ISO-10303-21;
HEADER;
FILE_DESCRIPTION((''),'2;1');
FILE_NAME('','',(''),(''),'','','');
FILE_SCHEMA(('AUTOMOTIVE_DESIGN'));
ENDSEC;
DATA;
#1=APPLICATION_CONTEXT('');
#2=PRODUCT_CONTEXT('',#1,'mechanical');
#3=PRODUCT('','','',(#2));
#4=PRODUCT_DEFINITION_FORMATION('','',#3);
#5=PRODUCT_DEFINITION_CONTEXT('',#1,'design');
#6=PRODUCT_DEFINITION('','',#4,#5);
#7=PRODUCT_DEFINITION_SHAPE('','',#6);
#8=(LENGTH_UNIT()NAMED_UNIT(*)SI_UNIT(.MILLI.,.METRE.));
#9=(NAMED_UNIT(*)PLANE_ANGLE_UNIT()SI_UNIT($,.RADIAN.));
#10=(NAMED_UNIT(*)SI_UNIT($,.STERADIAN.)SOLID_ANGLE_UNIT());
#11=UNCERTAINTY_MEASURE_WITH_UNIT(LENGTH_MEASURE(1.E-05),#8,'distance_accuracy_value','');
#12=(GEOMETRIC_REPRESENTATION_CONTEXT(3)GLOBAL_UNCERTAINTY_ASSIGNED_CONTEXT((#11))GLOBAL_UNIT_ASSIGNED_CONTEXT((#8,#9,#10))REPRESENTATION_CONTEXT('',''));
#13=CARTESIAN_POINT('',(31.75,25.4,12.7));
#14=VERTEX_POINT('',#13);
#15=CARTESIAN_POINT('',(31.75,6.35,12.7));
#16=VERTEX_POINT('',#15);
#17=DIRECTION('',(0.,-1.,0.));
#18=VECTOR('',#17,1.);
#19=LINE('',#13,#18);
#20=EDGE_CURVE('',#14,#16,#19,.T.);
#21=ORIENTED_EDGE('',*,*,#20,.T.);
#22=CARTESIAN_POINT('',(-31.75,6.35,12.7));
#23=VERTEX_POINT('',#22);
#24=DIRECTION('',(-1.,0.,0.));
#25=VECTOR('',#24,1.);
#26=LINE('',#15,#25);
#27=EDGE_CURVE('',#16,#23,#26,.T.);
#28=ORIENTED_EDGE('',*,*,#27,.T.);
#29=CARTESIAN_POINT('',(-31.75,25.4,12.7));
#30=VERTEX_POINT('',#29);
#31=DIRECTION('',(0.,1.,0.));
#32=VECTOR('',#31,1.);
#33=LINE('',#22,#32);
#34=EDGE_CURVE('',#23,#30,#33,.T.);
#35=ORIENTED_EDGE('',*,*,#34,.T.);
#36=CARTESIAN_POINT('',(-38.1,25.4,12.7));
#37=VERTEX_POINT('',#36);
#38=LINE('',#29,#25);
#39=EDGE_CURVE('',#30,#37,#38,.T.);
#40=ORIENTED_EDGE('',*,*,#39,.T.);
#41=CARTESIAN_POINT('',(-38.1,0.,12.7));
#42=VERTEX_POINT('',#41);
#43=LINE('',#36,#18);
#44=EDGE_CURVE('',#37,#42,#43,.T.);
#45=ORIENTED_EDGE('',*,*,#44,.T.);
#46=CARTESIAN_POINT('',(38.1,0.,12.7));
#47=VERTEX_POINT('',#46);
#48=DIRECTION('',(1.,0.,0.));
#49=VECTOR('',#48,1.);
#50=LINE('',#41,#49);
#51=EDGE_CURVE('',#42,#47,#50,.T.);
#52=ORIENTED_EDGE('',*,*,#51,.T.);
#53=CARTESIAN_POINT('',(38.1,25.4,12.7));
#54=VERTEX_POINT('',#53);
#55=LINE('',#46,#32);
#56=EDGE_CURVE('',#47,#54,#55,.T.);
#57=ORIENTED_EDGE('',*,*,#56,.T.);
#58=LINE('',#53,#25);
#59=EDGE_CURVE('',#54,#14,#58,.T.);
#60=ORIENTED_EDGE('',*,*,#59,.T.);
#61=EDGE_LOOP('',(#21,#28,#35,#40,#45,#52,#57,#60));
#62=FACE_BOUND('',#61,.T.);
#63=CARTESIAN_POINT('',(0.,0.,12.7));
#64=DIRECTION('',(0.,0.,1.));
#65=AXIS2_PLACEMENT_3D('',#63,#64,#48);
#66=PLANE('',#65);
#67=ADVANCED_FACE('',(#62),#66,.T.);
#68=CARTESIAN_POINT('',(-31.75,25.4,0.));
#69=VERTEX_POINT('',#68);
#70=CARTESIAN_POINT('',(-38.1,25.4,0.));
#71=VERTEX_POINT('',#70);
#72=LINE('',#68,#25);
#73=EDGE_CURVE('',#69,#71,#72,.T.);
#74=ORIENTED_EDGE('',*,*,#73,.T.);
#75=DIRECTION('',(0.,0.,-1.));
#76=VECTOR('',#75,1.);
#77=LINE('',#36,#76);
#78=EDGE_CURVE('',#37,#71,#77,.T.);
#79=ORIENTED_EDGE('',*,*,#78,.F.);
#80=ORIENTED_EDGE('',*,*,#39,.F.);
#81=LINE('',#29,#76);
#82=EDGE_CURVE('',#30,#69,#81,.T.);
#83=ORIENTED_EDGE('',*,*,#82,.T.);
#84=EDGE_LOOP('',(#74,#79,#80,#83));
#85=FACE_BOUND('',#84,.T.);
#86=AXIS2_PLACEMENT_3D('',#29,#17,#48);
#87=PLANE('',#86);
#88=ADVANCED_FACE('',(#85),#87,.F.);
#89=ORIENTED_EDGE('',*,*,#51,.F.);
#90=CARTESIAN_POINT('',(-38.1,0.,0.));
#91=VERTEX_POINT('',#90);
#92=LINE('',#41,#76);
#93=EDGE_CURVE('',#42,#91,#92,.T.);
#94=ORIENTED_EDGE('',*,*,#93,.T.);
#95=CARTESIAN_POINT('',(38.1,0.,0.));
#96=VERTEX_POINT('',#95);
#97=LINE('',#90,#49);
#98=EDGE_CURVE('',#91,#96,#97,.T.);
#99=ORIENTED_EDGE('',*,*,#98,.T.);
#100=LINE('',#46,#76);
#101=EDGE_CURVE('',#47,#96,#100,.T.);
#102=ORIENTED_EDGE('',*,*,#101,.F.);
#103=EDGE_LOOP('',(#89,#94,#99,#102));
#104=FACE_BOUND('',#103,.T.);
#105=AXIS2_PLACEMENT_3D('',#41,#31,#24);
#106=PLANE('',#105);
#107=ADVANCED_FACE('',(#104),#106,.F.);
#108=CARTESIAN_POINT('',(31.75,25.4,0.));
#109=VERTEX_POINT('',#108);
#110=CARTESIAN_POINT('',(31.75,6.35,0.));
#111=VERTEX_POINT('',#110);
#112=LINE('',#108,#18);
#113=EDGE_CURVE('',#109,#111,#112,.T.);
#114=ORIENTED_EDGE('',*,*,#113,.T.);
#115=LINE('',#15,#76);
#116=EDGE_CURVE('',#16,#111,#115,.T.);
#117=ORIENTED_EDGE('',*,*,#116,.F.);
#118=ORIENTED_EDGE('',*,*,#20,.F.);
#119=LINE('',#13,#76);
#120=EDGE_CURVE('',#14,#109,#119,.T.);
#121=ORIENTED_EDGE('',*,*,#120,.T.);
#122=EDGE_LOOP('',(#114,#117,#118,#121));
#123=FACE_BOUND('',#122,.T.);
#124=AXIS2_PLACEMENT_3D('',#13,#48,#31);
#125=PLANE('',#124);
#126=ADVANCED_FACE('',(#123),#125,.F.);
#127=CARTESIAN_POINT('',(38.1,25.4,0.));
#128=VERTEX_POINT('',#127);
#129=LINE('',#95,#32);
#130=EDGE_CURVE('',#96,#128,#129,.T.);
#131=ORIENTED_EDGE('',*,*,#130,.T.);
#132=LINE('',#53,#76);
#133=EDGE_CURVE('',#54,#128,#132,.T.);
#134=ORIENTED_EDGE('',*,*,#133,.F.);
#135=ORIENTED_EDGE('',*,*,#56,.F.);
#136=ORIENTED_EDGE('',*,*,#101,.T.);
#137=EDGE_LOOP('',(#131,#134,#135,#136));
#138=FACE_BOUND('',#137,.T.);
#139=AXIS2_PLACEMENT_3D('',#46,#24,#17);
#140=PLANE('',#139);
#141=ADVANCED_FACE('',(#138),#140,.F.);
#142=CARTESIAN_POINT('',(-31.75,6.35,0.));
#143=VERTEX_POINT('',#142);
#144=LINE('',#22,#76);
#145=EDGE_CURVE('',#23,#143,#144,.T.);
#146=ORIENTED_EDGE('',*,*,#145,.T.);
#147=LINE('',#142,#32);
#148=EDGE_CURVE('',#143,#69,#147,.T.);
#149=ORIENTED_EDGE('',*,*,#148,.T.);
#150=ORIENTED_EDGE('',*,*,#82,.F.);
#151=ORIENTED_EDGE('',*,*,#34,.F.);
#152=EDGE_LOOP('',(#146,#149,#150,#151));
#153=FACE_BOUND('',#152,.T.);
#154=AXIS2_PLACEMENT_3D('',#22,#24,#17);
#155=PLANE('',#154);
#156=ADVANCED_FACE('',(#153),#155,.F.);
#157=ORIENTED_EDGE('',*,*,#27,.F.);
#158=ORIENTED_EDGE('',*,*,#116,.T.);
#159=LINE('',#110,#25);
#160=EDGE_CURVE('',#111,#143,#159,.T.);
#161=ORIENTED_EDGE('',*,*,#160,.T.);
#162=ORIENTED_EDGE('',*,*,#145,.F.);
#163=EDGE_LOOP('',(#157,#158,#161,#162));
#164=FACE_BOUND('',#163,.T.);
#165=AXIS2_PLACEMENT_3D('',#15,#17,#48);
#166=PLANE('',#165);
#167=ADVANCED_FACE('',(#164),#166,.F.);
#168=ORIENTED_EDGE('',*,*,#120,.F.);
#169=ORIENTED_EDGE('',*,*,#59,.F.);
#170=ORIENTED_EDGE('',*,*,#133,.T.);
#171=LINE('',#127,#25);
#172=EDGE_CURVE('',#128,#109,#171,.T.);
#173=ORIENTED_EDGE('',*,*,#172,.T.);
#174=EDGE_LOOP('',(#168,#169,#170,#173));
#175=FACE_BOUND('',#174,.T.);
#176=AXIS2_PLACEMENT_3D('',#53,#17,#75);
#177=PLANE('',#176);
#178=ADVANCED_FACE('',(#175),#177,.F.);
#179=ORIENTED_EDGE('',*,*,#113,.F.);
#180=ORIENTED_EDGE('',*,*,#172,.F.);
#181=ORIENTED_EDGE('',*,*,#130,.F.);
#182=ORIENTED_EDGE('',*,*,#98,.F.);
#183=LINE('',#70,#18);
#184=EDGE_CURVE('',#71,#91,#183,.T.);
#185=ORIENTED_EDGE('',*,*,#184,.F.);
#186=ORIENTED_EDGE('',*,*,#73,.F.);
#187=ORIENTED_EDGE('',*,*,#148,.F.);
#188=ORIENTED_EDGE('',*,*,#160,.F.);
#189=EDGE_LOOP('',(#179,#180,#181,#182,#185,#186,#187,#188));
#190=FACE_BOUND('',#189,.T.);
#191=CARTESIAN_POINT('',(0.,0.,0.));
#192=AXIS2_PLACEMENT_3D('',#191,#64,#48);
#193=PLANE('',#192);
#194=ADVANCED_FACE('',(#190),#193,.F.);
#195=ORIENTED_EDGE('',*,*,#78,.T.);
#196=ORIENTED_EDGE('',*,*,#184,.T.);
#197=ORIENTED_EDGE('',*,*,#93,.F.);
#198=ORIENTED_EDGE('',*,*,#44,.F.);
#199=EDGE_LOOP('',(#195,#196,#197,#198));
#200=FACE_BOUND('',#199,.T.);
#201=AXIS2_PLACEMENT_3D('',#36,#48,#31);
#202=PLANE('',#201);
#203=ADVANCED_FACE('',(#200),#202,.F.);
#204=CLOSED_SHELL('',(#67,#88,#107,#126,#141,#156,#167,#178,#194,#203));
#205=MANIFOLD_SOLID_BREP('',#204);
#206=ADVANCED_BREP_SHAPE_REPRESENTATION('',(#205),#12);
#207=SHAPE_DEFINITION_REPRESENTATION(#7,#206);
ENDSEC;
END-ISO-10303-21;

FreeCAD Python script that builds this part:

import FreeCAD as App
import Part
import Sketcher
from FreeCAD import Vector
Q = App.Units.Quantity


def add_polygon(sketch, points):
    """Adds a closed chain of lines whose ends are joined by coincident constraints."""
    first, n = sketch.GeometryCount, len(points)
    for a, b in zip(points, points[1:] + points[:1]):
        sketch.addGeometry(Part.LineSegment(App.Vector(*a, 0), App.Vector(*b, 0)), False)
    for i in range(n):
        sketch.addConstraint(Sketcher.Constraint("Coincident", first + i, 2, first + (i + 1) % n, 1))

doc = App.newDocument("Part")
body = doc.addObject("PartDesign::Body", "Body")

sketch1 = body.newObject("Sketcher::SketchObject", "Sketch")
sketch1.AttachmentSupport = (doc.getObject("XY_Plane"), [""])
sketch1.MapMode = "FlatFace"
add_polygon(sketch1, [(-38.1, 0), (38.1, 0), (38.1, 25.4), (31.75, 25.4), (31.75, 6.35), (-31.75, 6.35), (-31.75, 25.4), (-38.1, 25.4)])
sketch1.addConstraint([
    Sketcher.Constraint("Horizontal", 0),
    Sketcher.Constraint("Vertical", 1),
    Sketcher.Constraint("Horizontal", 2),
    Sketcher.Constraint("Vertical", 3),
    Sketcher.Constraint("Horizontal", 4),
    Sketcher.Constraint("Vertical", 5),
    Sketcher.Constraint("Horizontal", 6),
    Sketcher.Constraint("Vertical", 7),
    Sketcher.Constraint("Symmetric", 0, 2, 7, 2, -1, 1),
    Sketcher.Constraint("Symmetric", 2, 2, 5, 2, -2),
    Sketcher.Constraint("DistanceX", 0, 1, 0, 2, Q("3 in")),
    Sketcher.Constraint("DistanceY", 1, 1, 1, 2, Q("1 in")),
    Sketcher.Constraint("DistanceX", 4, 2, 4, 1, Q("2.5 in")),
    Sketcher.Constraint("DistanceY", 3, 2, 3, 1, Q("0.75 in")),
])
pad1 = body.newObject("PartDesign::Pad", "Pad")
pad1.Profile = sketch1
pad1.Length = Q("0.5 in")

doc.recompute()
